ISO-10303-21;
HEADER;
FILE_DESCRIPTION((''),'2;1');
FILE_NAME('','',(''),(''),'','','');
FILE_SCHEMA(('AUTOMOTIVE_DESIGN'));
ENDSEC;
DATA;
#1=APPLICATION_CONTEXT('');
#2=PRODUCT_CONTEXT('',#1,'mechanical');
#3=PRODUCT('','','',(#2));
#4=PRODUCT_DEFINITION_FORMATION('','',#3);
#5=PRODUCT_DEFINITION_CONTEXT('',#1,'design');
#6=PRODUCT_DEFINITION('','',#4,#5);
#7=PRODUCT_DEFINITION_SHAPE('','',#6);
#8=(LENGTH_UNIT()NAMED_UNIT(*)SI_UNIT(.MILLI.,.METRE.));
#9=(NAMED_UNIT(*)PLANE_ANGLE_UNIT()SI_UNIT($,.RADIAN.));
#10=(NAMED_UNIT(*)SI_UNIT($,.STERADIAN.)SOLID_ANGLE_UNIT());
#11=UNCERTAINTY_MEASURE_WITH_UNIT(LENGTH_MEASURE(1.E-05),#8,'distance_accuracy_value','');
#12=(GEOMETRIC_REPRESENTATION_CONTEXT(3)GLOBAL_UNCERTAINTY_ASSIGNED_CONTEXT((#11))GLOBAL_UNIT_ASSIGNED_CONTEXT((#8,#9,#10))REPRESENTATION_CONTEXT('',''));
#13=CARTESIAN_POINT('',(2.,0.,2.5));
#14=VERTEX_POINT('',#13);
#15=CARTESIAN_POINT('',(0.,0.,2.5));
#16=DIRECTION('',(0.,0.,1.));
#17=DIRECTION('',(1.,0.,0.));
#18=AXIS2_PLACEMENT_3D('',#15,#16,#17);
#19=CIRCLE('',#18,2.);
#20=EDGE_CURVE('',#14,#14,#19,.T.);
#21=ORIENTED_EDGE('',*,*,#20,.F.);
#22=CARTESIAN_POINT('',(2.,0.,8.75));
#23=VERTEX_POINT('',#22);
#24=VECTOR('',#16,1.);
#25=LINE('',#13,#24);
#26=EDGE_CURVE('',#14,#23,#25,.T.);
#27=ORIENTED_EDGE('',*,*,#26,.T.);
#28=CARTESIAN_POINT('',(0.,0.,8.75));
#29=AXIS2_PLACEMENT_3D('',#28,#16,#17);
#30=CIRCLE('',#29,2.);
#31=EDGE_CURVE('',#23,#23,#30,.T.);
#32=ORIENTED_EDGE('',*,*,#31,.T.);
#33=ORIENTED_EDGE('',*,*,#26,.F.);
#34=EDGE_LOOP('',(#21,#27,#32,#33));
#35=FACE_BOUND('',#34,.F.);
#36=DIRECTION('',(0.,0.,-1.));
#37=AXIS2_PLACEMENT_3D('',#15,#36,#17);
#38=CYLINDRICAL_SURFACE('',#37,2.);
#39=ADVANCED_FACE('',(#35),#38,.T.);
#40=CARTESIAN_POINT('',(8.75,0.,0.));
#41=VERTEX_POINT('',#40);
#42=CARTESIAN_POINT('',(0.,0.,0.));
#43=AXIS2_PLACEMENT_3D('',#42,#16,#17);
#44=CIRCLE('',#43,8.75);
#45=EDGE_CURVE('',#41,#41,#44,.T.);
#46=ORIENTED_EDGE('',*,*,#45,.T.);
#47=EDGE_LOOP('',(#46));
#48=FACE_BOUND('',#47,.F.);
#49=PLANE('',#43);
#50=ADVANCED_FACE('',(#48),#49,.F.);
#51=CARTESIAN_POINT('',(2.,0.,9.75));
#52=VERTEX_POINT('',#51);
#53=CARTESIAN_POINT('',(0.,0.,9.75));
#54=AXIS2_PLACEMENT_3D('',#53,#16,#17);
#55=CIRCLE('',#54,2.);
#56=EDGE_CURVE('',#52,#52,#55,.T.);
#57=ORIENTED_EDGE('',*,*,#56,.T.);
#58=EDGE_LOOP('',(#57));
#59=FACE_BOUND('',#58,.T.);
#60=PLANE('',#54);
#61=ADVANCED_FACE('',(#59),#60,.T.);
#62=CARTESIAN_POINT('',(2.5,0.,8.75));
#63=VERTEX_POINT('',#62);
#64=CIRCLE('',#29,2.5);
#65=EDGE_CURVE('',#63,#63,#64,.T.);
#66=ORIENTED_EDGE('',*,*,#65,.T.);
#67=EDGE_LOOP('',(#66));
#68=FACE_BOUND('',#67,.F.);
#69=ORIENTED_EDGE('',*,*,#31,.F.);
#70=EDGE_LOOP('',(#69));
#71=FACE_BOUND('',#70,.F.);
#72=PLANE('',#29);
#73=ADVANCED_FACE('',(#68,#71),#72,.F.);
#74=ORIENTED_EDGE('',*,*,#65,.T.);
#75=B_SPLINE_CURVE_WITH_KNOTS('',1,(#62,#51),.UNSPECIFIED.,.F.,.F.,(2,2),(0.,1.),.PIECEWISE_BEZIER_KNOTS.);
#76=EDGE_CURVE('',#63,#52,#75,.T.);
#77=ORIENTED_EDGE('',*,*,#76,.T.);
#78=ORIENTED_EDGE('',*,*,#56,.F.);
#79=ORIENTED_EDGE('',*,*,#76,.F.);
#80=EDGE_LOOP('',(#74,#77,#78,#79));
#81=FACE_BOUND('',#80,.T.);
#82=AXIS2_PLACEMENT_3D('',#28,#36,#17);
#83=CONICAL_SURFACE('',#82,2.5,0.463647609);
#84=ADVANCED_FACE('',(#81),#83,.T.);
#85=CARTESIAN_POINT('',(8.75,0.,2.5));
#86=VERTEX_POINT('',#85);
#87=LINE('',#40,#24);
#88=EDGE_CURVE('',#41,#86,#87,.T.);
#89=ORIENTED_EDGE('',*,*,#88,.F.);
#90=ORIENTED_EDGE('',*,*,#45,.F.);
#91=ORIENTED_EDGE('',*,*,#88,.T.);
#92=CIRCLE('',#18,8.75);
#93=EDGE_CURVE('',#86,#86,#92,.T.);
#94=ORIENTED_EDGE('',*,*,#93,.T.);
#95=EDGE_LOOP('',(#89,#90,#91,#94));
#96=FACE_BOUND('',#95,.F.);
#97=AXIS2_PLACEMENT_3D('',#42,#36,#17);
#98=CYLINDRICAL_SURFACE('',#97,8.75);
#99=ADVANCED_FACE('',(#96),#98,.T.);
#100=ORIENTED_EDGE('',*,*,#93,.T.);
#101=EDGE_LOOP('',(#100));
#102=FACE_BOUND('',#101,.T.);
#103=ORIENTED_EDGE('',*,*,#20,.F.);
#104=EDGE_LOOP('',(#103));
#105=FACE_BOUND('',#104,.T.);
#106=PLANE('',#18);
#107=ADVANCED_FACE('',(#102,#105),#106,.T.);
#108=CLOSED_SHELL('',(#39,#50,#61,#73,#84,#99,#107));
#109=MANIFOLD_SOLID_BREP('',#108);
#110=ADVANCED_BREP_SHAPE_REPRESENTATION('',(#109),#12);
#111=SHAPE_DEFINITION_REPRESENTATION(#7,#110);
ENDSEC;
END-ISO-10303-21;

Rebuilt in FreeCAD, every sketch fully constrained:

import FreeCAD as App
import Part
import Sketcher
from FreeCAD import Vector

doc = App.newDocument("Part")
body = doc.addObject("PartDesign::Body", "Body")

# Sketch on XY plane
sketch1 = doc.addObject("Sketcher::SketchObject", "Sketch")
body.addObject(sketch1)
sketch1.AttachmentSupport = (doc.XY_Plane, [""])
sketch1.MapMode = "FlatFace"
sketch1.addGeometry(Part.Circle(Vector(0, 0, 0), Vector(0, 0, 1), 9), False)
sketch1.addConstraint([
    Sketcher.Constraint("Coincident", 0, 3, -1, 1),
    Sketcher.Constraint("Diameter", 0, 17.5),
])
pad1 = doc.addObject("PartDesign::Pad", "Pad")
body.addObject(pad1)
pad1.Profile = sketch1
pad1.Length = 2.5

# Sketch on XY plane
sketch2 = doc.addObject("Sketcher::SketchObject", "Sketch001")
body.addObject(sketch2)
sketch2.AttachmentSupport = (doc.XY_Plane, [""])
sketch2.MapMode = "FlatFace"
sketch2.AttachmentOffset = App.Placement(Vector(0, 0, 2.5), App.Rotation())
sketch2.addGeometry(Part.Circle(Vector(0, 0, 0), Vector(0, 0, 1), 2), False)
sketch2.addConstraint([
    Sketcher.Constraint("Coincident", 0, 3, -1, 1),
    Sketcher.Constraint("Diameter", 0, 4.0),
])
pad2 = doc.addObject("PartDesign::Pad", "Pad001")
body.addObject(pad2)
pad2.Profile = sketch2
pad2.Length = 6.25

# Sketch on XY plane
sketch3 = doc.addObject("Sketcher::SketchObject", "Sketch002")
body.addObject(sketch3)
sketch3.AttachmentSupport = (doc.XY_Plane, [""])
sketch3.MapMode = "FlatFace"
sketch3.AttachmentOffset = App.Placement(Vector(0, 0, 8.75), App.Rotation())
sketch3.addGeometry(Part.Circle(Vector(0, 0, 0), Vector(0, 0, 1), 2.5), False)
sketch3.addConstraint([
    Sketcher.Constraint("Coincident", 0, 3, -1, 1),
    Sketcher.Constraint("Diameter", 0, 5.0),
])

# Sketch on XY plane
sketch4 = doc.addObject("Sketcher::SketchObject", "Sketch003")
body.addObject(sketch4)
sketch4.AttachmentSupport = (doc.XY_Plane, [""])
sketch4.MapMode = "FlatFace"
sketch4.AttachmentOffset = App.Placement(Vector(0, 0, 9.75), App.Rotation())
sketch4.addGeometry(Part.Circle(Vector(0, 0, 0), Vector(0, 0, 1), 2), False)
sketch4.addConstraint([
    Sketcher.Constraint("Coincident", 0, 3, -1, 1),
    Sketcher.Constraint("Diameter", 0, 4.0),
])

additiveloft = doc.addObject("PartDesign::AdditiveLoft", "AdditiveLoft")
body.addObject(additiveloft)
additiveloft.Profile = sketch3
additiveloft.Sections = [sketch4]

doc.recompute()
